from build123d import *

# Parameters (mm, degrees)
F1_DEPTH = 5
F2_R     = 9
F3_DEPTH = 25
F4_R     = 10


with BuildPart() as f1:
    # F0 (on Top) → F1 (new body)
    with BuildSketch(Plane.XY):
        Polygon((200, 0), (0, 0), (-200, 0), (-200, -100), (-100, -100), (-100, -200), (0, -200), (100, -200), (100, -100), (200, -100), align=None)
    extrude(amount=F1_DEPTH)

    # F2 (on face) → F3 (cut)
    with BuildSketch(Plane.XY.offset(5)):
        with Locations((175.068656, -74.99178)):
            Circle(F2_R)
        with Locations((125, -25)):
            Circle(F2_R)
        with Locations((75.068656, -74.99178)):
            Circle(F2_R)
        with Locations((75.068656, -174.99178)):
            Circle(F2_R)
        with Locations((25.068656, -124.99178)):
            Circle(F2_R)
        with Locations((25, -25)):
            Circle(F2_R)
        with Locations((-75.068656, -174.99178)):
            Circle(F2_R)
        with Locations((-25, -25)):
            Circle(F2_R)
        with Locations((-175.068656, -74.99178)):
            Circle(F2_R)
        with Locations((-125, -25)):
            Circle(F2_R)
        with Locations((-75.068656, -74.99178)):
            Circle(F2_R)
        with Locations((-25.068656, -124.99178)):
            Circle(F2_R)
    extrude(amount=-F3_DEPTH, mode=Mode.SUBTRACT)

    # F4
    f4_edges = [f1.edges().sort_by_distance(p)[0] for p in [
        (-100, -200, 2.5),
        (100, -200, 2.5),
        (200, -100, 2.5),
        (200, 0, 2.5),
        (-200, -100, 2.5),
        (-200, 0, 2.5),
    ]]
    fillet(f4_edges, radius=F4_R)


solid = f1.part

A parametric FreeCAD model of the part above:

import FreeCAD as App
import Part
import Sketcher
Q = App.Units.Quantity


def edges_at(feature, points):
    """Names of the edges that pass closest to the given points."""
    edges = feature.Shape.Edges
    near = lambda p: min(range(len(edges)), key=lambda i: edges[i].distToShape(Part.Vertex(*p))[0])
    return sorted({f"Edge{near(p) + 1}" for p in points})

doc = App.newDocument("Part")
body = doc.addObject("PartDesign::Body", "Body")

# Sketch on XY plane
sketch1 = body.newObject("Sketcher::SketchObject", "Sketch")
sketch1.AttachmentSupport = (doc.getObject("XY_Plane"), [""])
sketch1.MapMode = "FlatFace"
sketch1.addGeometry(Part.LineSegment(App.Vector(200, 0, 0), App.Vector(-200, 0, 0)), False)
sketch1.addGeometry(Part.LineSegment(App.Vector(-200, 0, 0), App.Vector(-200, -100, 0)), False)
sketch1.addGeometry(Part.LineSegment(App.Vector(-200, -100, 0), App.Vector(-100, -100, 0)), False)
sketch1.addGeometry(Part.LineSegment(App.Vector(-100, -100, 0), App.Vector(-100, -200, 0)), False)
sketch1.addGeometry(Part.LineSegment(App.Vector(-100, -200, 0), App.Vector(100, -200, 0)), False)
sketch1.addGeometry(Part.LineSegment(App.Vector(100, -200, 0), App.Vector(100, -100, 0)), False)
sketch1.addGeometry(Part.LineSegment(App.Vector(100, -100, 0), App.Vector(200, -100, 0)), False)
sketch1.addGeometry(Part.LineSegment(App.Vector(200, -100, 0), App.Vector(200, 0, 0)), False)
sketch1.addConstraint(Sketcher.Constraint("Coincident", 0, 2, 1, 1))
sketch1.addConstraint(Sketcher.Constraint("Coincident", 1, 2, 2, 1))
sketch1.addConstraint(Sketcher.Constraint("Coincident", 2, 2, 3, 1))
sketch1.addConstraint(Sketcher.Constraint("Coincident", 3, 2, 4, 1))
sketch1.addConstraint(Sketcher.Constraint("Coincident", 4, 2, 5, 1))
sketch1.addConstraint(Sketcher.Constraint("Coincident", 5, 2, 6, 1))
sketch1.addConstraint(Sketcher.Constraint("Coincident", 6, 2, 7, 1))
sketch1.addConstraint(Sketcher.Constraint("Coincident", 7, 2, 0, 1))
sketch1.addConstraint(Sketcher.Constraint("Horizontal", 0))
sketch1.addConstraint(Sketcher.Constraint("Vertical", 1))
sketch1.addConstraint(Sketcher.Constraint("Horizontal", 2))
sketch1.addConstraint(Sketcher.Constraint("Vertical", 3))
sketch1.addConstraint(Sketcher.Constraint("Horizontal", 4))
sketch1.addConstraint(Sketcher.Constraint("Vertical", 5))
sketch1.addConstraint(Sketcher.Constraint("Horizontal", 6))
sketch1.addConstraint(Sketcher.Constraint("Vertical", 7))
sketch1.addConstraint(Sketcher.Constraint("Symmetric", 0, 2, 7, 2, -1, 1))
sketch1.addConstraint(Sketcher.Constraint("Symmetric", 2, 2, 5, 2, -2))
sketch1.addConstraint(Sketcher.Constraint("Equal", 6, 1))
sketch1.addConstraint(Sketcher.Constraint("Equal", 1, 3))
sketch1.addConstraint(Sketcher.Constraint("DistanceX", 0, 2, 0, 1, Q("400 mm")))
sketch1.addConstraint(Sketcher.Constraint("DistanceX", 2, 1, 2, 2, Q("100 mm")))
pad1 = body.newObject("PartDesign::Pad", "Pad")
pad1.Profile = sketch1
pad1.Length = 5

# Sketch on XY plane
sketch2 = body.newObject("Sketcher::SketchObject", "Sketch001")
sketch2.AttachmentSupport = (doc.getObject("XY_Plane"), [""])
sketch2.MapMode = "FlatFace"
sketch2.AttachmentOffset = App.Placement(App.Vector(0, 0, 5), App.Rotation())
sketch2.addGeometry(Part.Circle(App.Vector(175.068656, -74.99178, 0), App.Vector(0, 0, 1), 9), False)
sketch2.addGeometry(Part.Circle(App.Vector(125, -25, 0), App.Vector(0, 0, 1), 9), False)
sketch2.addGeometry(Part.Circle(App.Vector(75.068656, -74.99178, 0), App.Vector(0, 0, 1), 9), False)
sketch2.addGeometry(Part.Circle(App.Vector(75.068656, -174.99178, 0), App.Vector(0, 0, 1), 9), False)
sketch2.addGeometry(Part.Circle(App.Vector(25.068656, -124.99178, 0), App.Vector(0, 0, 1), 9), False)
sketch2.addGeometry(Part.Circle(App.Vector(25, -25, 0), App.Vector(0, 0, 1), 9), False)
sketch2.addGeometry(Part.Circle(App.Vector(-75.068656, -174.99178, 0), App.Vector(0, 0, 1), 9), False)
sketch2.addGeometry(Part.Circle(App.Vector(-25, -25, 0), App.Vector(0, 0, 1), 9), False)
sketch2.addGeometry(Part.Circle(App.Vector(-175.068656, -74.99178, 0), App.Vector(0, 0, 1), 9), False)
sketch2.addGeometry(Part.Circle(App.Vector(-125, -25, 0), App.Vector(0, 0, 1), 9), False)
sketch2.addGeometry(Part.Circle(App.Vector(-75.068656, -74.99178, 0), App.Vector(0, 0, 1), 9), False)
sketch2.addGeometry(Part.Circle(App.Vector(-25.068656, -124.99178, 0), App.Vector(0, 0, 1), 9), False)
sketch2.addConstraint(Sketcher.Constraint("Equal", 0, 1))
sketch2.addConstraint(Sketcher.Constraint("Equal", 1, 2))
sketch2.addConstraint(Sketcher.Constraint("Equal", 2, 3))
sketch2.addConstraint(Sketcher.Constraint("Equal", 3, 4))
sketch2.addConstraint(Sketcher.Constraint("Equal", 4, 5))
sketch2.addConstraint(Sketcher.Constraint("Equal", 5, 6))
sketch2.addConstraint(Sketcher.Constraint("Equal", 6, 7))
sketch2.addConstraint(Sketcher.Constraint("Equal", 7, 8))
sketch2.addConstraint(Sketcher.Constraint("Equal", 8, 9))
sketch2.addConstraint(Sketcher.Constraint("Equal", 9, 10))
sketch2.addConstraint(Sketcher.Constraint("Equal", 10, 11))
sketch2.addConstraint(Sketcher.Constraint("Symmetric", 3, 3, 6, 3, -2))
sketch2.addConstraint(Sketcher.Constraint("Symmetric", 5, 3, 7, 3, -2))
sketch2.addConstraint(Sketcher.Constraint("Symmetric", 0, 3, 8, 3, -2))
sketch2.addConstraint(Sketcher.Constraint("Symmetric", 1, 3, 9, 3, -2))
sketch2.addConstraint(Sketcher.Constraint("Symmetric", 2, 3, 10, 3, -2))
sketch2.addConstraint(Sketcher.Constraint("Symmetric", 4, 3, 11, 3, -2))
sketch2.addConstraint(Sketcher.Constraint("Horizontal", 0, 3, 2, 3))
sketch2.addConstraint(Sketcher.Constraint("Horizontal", 1, 3, 5, 3))
sketch2.addConstraint(Sketcher.Constraint("Vertical", 2, 3, 3, 3))
sketch2.addConstraint(Sketcher.Constraint("Diameter", 0, Q("18 mm")))
sketch2.addConstraint(Sketcher.Constraint("DistanceX", -1, 1, 1, 3, Q("125 mm")))
sketch2.addConstraint(Sketcher.Constraint("DistanceY", 1, 3, -1, 1, Q("25 mm")))
sketch2.addConstraint(Sketcher.Constraint("DistanceX", -1, 1, 5, 3, Q("25 mm")))
sketch2.addConstraint(Sketcher.Constraint("DistanceX", 2, 3, 0, 3, Q("100 mm")))
sketch2.addConstraint(Sketcher.Constraint("DistanceY", 3, 3, 2, 3, Q("100 mm")))
sketch2.addConstraint(Sketcher.Constraint("DistanceX", 4, 3, 2, 3, Q("50 mm")))
sketch2.addConstraint(Sketcher.Constraint("DistanceY", 4, 3, 2, 3, Q("50 mm")))
sketch2.addConstraint(Sketcher.Constraint("DistanceY", 0, 3, -1, 1, Q("74.99178 mm")))
sketch2.addConstraint(Sketcher.Constraint("DistanceX", 6, 3, 3, 3, Q("150.137312 mm")))
pocket1 = body.newObject("PartDesign::Pocket", "Pocket")
pocket1.Profile = sketch2
pocket1.Length = 25
doc.recompute()

fillet = body.newObject("PartDesign::Fillet", "Fillet")
fillet.Base = (pocket1, edges_at(pocket1, [
    (-100, -200, 2.5),
    (100, -200, 2.5),
    (200, -100, 2.5),
    (200, 0, 2.5),
    (-200, -100, 2.5),
    (-200, 0, 2.5),
]))
fillet.Radius = 10

doc.recompute()
